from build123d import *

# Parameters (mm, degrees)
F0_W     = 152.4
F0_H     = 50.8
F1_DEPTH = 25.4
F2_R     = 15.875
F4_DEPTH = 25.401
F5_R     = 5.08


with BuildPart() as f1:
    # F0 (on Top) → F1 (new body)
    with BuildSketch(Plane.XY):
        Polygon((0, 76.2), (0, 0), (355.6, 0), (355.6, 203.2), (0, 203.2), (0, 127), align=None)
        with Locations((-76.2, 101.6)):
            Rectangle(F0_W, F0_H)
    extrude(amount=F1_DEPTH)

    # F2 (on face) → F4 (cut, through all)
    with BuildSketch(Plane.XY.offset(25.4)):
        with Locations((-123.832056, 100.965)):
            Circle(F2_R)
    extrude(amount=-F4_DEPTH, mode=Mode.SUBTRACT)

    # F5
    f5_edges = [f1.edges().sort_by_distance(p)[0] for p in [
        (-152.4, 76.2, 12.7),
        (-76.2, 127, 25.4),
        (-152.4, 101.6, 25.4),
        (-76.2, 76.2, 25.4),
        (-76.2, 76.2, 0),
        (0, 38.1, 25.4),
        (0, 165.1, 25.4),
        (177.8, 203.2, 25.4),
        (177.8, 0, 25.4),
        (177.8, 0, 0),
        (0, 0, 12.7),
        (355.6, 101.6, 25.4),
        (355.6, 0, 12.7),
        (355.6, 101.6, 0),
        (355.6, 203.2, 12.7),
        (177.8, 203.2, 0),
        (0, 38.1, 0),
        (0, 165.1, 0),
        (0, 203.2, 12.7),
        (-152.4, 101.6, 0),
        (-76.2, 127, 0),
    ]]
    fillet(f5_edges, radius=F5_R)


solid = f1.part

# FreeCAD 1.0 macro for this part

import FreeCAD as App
import Part
import Sketcher
Q = App.Units.Quantity


def edges_at(feature, points):
    """Names of the edges that pass closest to the given points."""
    edges = feature.Shape.Edges
    near = lambda p: min(range(len(edges)), key=lambda i: edges[i].distToShape(Part.Vertex(*p))[0])
    return sorted({f"Edge{near(p) + 1}" for p in points})


def add_polygon(sketch, points):
    """Adds a closed chain of lines whose ends are joined by coincident constraints."""
    first, n = sketch.GeometryCount, len(points)
    for a, b in zip(points, points[1:] + points[:1]):
        sketch.addGeometry(Part.LineSegment(App.Vector(*a, 0), App.Vector(*b, 0)), False)
    for i in range(n):
        sketch.addConstraint(Sketcher.Constraint("Coincident", first + i, 2, first + (i + 1) % n, 1))

doc = App.newDocument("Part")
params = doc.addObject("Spreadsheet::Sheet", "Params")
for row, (alias, value) in enumerate([
    ("sketch1_width", "14 in"),
    ("sketch1_width2", "6 in"),
    ("sketch1_height", "8 in"),
    ("sketch1_height2", "3 in"),
    ("pad1_length", "1 in"),
    ("sketch2_diameter", "1.25 in"),
    ("fillet_radius", "0.2 in"),
], start=1):
    params.set(f"A{row}", alias)
    params.set(f"B{row}", "=" + value)
    params.setAlias(f"B{row}", alias)

body = doc.addObject("PartDesign::Body", "Body")

sketch1 = body.newObject("Sketcher::SketchObject", "Sketch")
sketch1.AttachmentSupport = (doc.getObject("XY_Plane"), [""])
sketch1.MapMode = "FlatFace"
add_polygon(sketch1, [(0, 0), (355.6, 0), (355.6, 203.2), (0, 203.2), (0, 127), (-152.4, 127), (-152.4, 76.2), (0, 76.2)])
sketch1.addConstraint(Sketcher.Constraint("Horizontal", 0))
sketch1.addConstraint(Sketcher.Constraint("Vertical", 1))
sketch1.addConstraint(Sketcher.Constraint("Horizontal", 2))
sketch1.addConstraint(Sketcher.Constraint("Vertical", 3))
sketch1.addConstraint(Sketcher.Constraint("Horizontal", 4))
sketch1.addConstraint(Sketcher.Constraint("Vertical", 5))
sketch1.addConstraint(Sketcher.Constraint("Horizontal", 6))
sketch1.addConstraint(Sketcher.Constraint("Vertical", 7))
sketch1.addConstraint(Sketcher.Constraint("Coincident", 7, 2, -1, 1))
sketch1.addConstraint(Sketcher.Constraint("PointOnObject", 2, 2, -2))
sketch1.addConstraint(Sketcher.Constraint("Equal", 3, 7))
sketch1.addConstraint(Sketcher.Constraint("DistanceX", 0, 1, 0, 2, Q("14 in")))
sketch1.addConstraint(Sketcher.Constraint("DistanceX", 4, 2, 4, 1, Q("6 in")))
sketch1.addConstraint(Sketcher.Constraint("DistanceY", 1, 1, 1, 2, Q("8 in")))
sketch1.addConstraint(Sketcher.Constraint("DistanceY", 3, 2, 3, 1, Q("3 in")))
sketch1.setExpression("Constraints[19]", "Params.sketch1_width")
sketch1.setExpression("Constraints[20]", "Params.sketch1_width2")
sketch1.setExpression("Constraints[21]", "Params.sketch1_height")
sketch1.setExpression("Constraints[22]", "Params.sketch1_height2")
pad1 = body.newObject("PartDesign::Pad", "Pad")
pad1.Profile = sketch1
pad1.setExpression("Length", "Params.pad1_length")

sketch2 = body.newObject("Sketcher::SketchObject", "Sketch001")
sketch2.AttachmentSupport = (doc.getObject("XY_Plane"), [""])
sketch2.MapMode = "FlatFace"
sketch2.AttachmentOffset = App.Placement(App.Vector(0, 0, 1 * 25.4), App.Rotation())
sketch2.addGeometry(Part.Circle(App.Vector(-123.832056, 100.965, 0), App.Vector(0, 0, 1), 15.875), False)
sketch2.addConstraint(Sketcher.Constraint("Diameter", 0, Q("1.25 in")))
sketch2.addConstraint(Sketcher.Constraint("DistanceY", -1, 1, 0, 3, Q("3.975 in")))
sketch2.addConstraint(Sketcher.Constraint("DistanceX", 0, 3, -1, 1, 123.832056))
sketch2.setExpression("Constraints[0]", "Params.sketch2_diameter")
pocket1 = body.newObject("PartDesign::Pocket", "Pocket")
pocket1.Profile = sketch2
pocket1.Type = "ThroughAll"
doc.recompute()

fillet = body.newObject("PartDesign::Fillet", "Fillet")
fillet.Base = (pocket1, edges_at(pocket1, [
    (-152.4, 76.2, 12.7),
    (-76.2, 127, 25.4),
    (-152.4, 101.6, 25.4),
    (-76.2, 76.2, 25.4),
    (-76.2, 76.2, 0),
    (0, 38.1, 25.4),
    (0, 165.1, 25.4),
    (177.8, 203.2, 25.4),
    (177.8, 0, 25.4),
    (177.8, 0, 0),
    (0, 0, 12.7),
    (355.6, 101.6, 25.4),
    (355.6, 0, 12.7),
    (355.6, 101.6, 0),
    (355.6, 203.2, 12.7),
    (177.8, 203.2, 0),
    (0, 38.1, 0),
    (0, 165.1, 0),
    (0, 203.2, 12.7),
    (-152.4, 101.6, 0),
    (-76.2, 127, 0),
]))
fillet.setExpression("Radius", "Params.fillet_radius")

doc.recompute()
